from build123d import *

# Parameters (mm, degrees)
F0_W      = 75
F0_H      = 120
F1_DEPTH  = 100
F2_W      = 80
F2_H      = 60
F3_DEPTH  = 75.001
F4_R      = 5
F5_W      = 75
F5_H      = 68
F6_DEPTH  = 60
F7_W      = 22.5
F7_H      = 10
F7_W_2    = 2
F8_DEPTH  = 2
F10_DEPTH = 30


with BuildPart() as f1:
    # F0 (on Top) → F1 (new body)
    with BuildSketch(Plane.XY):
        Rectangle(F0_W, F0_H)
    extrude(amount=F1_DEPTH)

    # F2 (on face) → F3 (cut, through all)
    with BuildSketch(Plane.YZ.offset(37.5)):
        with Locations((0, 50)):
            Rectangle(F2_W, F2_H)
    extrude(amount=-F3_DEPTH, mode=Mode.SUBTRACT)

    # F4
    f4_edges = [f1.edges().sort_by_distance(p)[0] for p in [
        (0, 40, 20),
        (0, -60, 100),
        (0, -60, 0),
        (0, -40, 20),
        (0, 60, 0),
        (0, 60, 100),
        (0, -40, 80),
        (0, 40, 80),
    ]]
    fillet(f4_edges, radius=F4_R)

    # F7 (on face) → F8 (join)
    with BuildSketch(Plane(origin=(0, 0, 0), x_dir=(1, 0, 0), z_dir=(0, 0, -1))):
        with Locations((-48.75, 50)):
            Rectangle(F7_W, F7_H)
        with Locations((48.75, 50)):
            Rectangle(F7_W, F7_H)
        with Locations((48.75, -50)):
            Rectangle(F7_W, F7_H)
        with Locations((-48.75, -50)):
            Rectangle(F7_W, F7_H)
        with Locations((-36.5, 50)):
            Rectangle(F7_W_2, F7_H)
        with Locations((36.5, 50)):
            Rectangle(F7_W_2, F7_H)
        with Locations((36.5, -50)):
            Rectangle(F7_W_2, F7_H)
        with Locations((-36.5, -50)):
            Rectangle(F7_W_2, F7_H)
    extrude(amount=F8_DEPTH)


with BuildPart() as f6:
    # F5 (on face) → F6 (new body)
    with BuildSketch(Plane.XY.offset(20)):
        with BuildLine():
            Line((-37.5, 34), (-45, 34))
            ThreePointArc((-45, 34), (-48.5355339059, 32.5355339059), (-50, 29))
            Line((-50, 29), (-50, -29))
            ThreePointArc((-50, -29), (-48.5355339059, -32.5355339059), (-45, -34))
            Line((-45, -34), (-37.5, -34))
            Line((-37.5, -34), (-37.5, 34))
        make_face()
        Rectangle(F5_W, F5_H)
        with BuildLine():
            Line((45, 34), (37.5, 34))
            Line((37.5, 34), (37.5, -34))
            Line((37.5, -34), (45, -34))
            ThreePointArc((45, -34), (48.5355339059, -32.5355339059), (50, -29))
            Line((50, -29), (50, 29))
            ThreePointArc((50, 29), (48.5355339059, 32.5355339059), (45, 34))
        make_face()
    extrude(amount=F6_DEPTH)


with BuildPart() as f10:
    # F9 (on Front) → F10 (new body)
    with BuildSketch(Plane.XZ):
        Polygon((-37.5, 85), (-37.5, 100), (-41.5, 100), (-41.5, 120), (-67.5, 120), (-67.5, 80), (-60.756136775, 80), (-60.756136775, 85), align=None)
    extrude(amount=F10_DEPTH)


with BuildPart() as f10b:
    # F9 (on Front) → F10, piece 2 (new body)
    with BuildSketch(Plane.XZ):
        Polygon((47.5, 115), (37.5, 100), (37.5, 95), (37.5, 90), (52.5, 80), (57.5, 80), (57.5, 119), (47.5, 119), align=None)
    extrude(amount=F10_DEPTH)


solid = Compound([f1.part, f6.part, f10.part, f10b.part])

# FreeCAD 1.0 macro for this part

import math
import FreeCAD as App
import Part
import Sketcher
from FreeCAD import Vector
Q = App.Units.Quantity


def edges_at(feature, points):
    """Names of the edges that pass closest to the given points."""
    edges = feature.Shape.Edges
    near = lambda p: min(range(len(edges)), key=lambda i: edges[i].distToShape(Part.Vertex(*p))[0])
    return sorted({f"Edge{near(p) + 1}" for p in points})


def add_polygon(sketch, points):
    """Adds a closed chain of lines whose ends are joined by coincident constraints."""
    first, n = sketch.GeometryCount, len(points)
    for a, b in zip(points, points[1:] + points[:1]):
        sketch.addGeometry(Part.LineSegment(App.Vector(*a, 0), App.Vector(*b, 0)), False)
    for i in range(n):
        sketch.addConstraint(Sketcher.Constraint("Coincident", first + i, 2, first + (i + 1) % n, 1))

doc = App.newDocument("Part")
body = doc.addObject("PartDesign::Body", "Body")

# Sketch on XY plane
sketch1 = body.newObject("Sketcher::SketchObject", "Sketch")
sketch1.AttachmentSupport = (doc.getObject("XY_Plane"), [""])
sketch1.MapMode = "FlatFace"
add_polygon(sketch1, [(-37.5, 60), (-37.5, -60), (37.5, -60), (37.5, 60)])  # lines 0-3
sketch1.addConstraint(Sketcher.Constraint("Vertical", 0))
sketch1.addConstraint(Sketcher.Constraint("Horizontal", 1))
sketch1.addConstraint(Sketcher.Constraint("Vertical", 2))
sketch1.addConstraint(Sketcher.Constraint("Horizontal", 3))
sketch1.addConstraint(Sketcher.Constraint("Symmetric", 0, 2, 2, 2, -1, 1))
sketch1.addConstraint(Sketcher.Constraint("DistanceX", 1, 1, 1, 2, Q("75 mm")))
sketch1.addConstraint(Sketcher.Constraint("DistanceY", 0, 2, 0, 1, Q("120 mm")))
pad1 = body.newObject("PartDesign::Pad", "Pad")
pad1.Profile = sketch1
pad1.Length = 100

# Sketch on YZ plane
sketch2 = body.newObject("Sketcher::SketchObject", "Sketch001")
sketch2.AttachmentSupport = (doc.getObject("YZ_Plane"), [""])
sketch2.MapMode = "FlatFace"
sketch2.AttachmentOffset = App.Placement(Vector(0, 0, 37.5), App.Rotation())
add_polygon(sketch2, [(-40, 80), (-40, 20), (40, 20), (40, 80)])  # lines 0-3
sketch2.addConstraint(Sketcher.Constraint("Vertical", 0))
sketch2.addConstraint(Sketcher.Constraint("Horizontal", 1))
sketch2.addConstraint(Sketcher.Constraint("Vertical", 2))
sketch2.addConstraint(Sketcher.Constraint("Horizontal", 3))
sketch2.addConstraint(Sketcher.Constraint("DistanceX", 1, 1, 1, 2, Q("80 mm")))
sketch2.addConstraint(Sketcher.Constraint("DistanceY", 0, 2, 0, 1, Q("60 mm")))
sketch2.addConstraint(Sketcher.Constraint("DistanceX", 0, 2, -1, 1, Q("40 mm")))
sketch2.addConstraint(Sketcher.Constraint("DistanceY", -1, 1, 0, 2, Q("20 mm")))
pocket1 = body.newObject("PartDesign::Pocket", "Pocket")
pocket1.Profile = sketch2
pocket1.Type = "ThroughAll"
doc.recompute()

fillet = body.newObject("PartDesign::Fillet", "Fillet")
fillet.Base = (pocket1, edges_at(pocket1, [
    (0, 40, 20),
    (0, -60, 100),
    (0, -60, 0),
    (0, -40, 20),
    (0, 60, 0),
    (0, 60, 100),
    (0, -40, 80),
    (0, 40, 80),
]))
fillet.Radius = 5

# Sketch on XY plane
sketch3 = body.newObject("Sketcher::SketchObject", "Sketch002")
sketch3.AttachmentSupport = (doc.getObject("XY_Plane"), [""])
sketch3.MapMode = "FlatFace"
add_polygon(sketch3, [(-60, -55), (-60, -45), (-35.5, -45), (-35.5, -55)])  # lines 0-3
add_polygon(sketch3, [(60, -45), (60, -55), (35.5, -55), (35.5, -45)])  # lines 4-7
add_polygon(sketch3, [(60, 55), (60, 45), (35.5, 45), (35.5, 55)])  # lines 8-11
add_polygon(sketch3, [(-60, 45), (-60, 55), (-35.5, 55), (-35.5, 45)])  # lines 12-15
sketch3.addConstraint(Sketcher.Constraint("Vertical", 0))
sketch3.addConstraint(Sketcher.Constraint("Horizontal", 1))
sketch3.addConstraint(Sketcher.Constraint("Vertical", 2))
sketch3.addConstraint(Sketcher.Constraint("Horizontal", 3))
sketch3.addConstraint(Sketcher.Constraint("Vertical", 4))
sketch3.addConstraint(Sketcher.Constraint("Horizontal", 5))
sketch3.addConstraint(Sketcher.Constraint("Vertical", 6))
sketch3.addConstraint(Sketcher.Constraint("Horizontal", 7))
sketch3.addConstraint(Sketcher.Constraint("Vertical", 8))
sketch3.addConstraint(Sketcher.Constraint("Horizontal", 9))
sketch3.addConstraint(Sketcher.Constraint("Vertical", 10))
sketch3.addConstraint(Sketcher.Constraint("Horizontal", 11))
sketch3.addConstraint(Sketcher.Constraint("Vertical", 12))
sketch3.addConstraint(Sketcher.Constraint("Horizontal", 13))
sketch3.addConstraint(Sketcher.Constraint("Vertical", 14))
sketch3.addConstraint(Sketcher.Constraint("Horizontal", 15))
sketch3.addConstraint(Sketcher.Constraint("Symmetric", 0, 2, 8, 2, -1, 1))
sketch3.addConstraint(Sketcher.Constraint("Symmetric", 2, 2, 10, 2, -1, 1))
sketch3.addConstraint(Sketcher.Constraint("Symmetric", 4, 2, 12, 2, -1, 1))
sketch3.addConstraint(Sketcher.Constraint("Symmetric", 6, 2, 14, 2, -1, 1))
sketch3.addConstraint(Sketcher.Constraint("Symmetric", 3, 2, 4, 2, -2))
sketch3.addConstraint(Sketcher.Constraint("Symmetric", 1, 2, 6, 2, -2))
sketch3.addConstraint(Sketcher.Constraint("DistanceY", 0, 1, 0, 2, Q("10 mm")))
sketch3.addConstraint(Sketcher.Constraint("DistanceX", 1, 1, 1, 2, Q("24.5 mm")))
sketch3.addConstraint(Sketcher.Constraint("DistanceX", 0, 2, -1, 1, Q("60 mm")))
sketch3.addConstraint(Sketcher.Constraint("DistanceY", 0, 2, -1, 1, Q("45 mm")))
pad2 = body.newObject("PartDesign::Pad", "Pad001")
pad2.Profile = sketch3
pad2.Length = 2
pad2.Reversed = True
body2 = doc.addObject("PartDesign::Body", "Body001")

# Sketch on XY plane
sketch4 = body2.newObject("Sketcher::SketchObject", "Sketch003")
sketch4.AttachmentSupport = (doc.getObject("XY_Plane001"), [""])
sketch4.MapMode = "FlatFace"
sketch4.AttachmentOffset = App.Placement(Vector(0, 0, 20), App.Rotation())
sketch4.addGeometry(Part.ArcOfCircle(Part.Circle(Vector(-45, 29, 0), Vector(0, 0, 1), 5), math.radians(90), math.radians(180)), False)
sketch4.addGeometry(Part.LineSegment(Vector(-50, 29, 0), Vector(-50, -29, 0)), False)
sketch4.addGeometry(Part.ArcOfCircle(Part.Circle(Vector(-45, -29, 0), Vector(0, 0, 1), 5), math.radians(180), math.radians(270)), False)
sketch4.addGeometry(Part.LineSegment(Vector(-45, -34, 0), Vector(45, -34, 0)), False)
sketch4.addGeometry(Part.ArcOfCircle(Part.Circle(Vector(45, -29, 0), Vector(0, 0, 1), 5), math.radians(-90), math.radians(0)), False)
sketch4.addGeometry(Part.LineSegment(Vector(50, -29, 0), Vector(50, 29, 0)), False)
sketch4.addGeometry(Part.ArcOfCircle(Part.Circle(Vector(45, 29, 0), Vector(0, 0, 1), 5), math.radians(0), math.radians(90)), False)
sketch4.addGeometry(Part.LineSegment(Vector(45, 34, 0), Vector(-45, 34, 0)), False)
sketch4.addConstraint(Sketcher.Constraint("Tangent", 0, 2, 1, 1))
sketch4.addConstraint(Sketcher.Constraint("Tangent", 1, 2, 2, 1))
sketch4.addConstraint(Sketcher.Constraint("Tangent", 2, 2, 3, 1))
sketch4.addConstraint(Sketcher.Constraint("Tangent", 3, 2, 4, 1))
sketch4.addConstraint(Sketcher.Constraint("Tangent", 4, 2, 5, 1))
sketch4.addConstraint(Sketcher.Constraint("Tangent", 5, 2, 6, 1))
sketch4.addConstraint(Sketcher.Constraint("Tangent", 6, 2, 7, 1))
sketch4.addConstraint(Sketcher.Constraint("Tangent", 7, 2, 0, 1))
sketch4.addConstraint(Sketcher.Constraint("Vertical", 1))
sketch4.addConstraint(Sketcher.Constraint("Horizontal", 3))
sketch4.addConstraint(Sketcher.Constraint("Vertical", 5))
sketch4.addConstraint(Sketcher.Constraint("Horizontal", 7))
sketch4.addConstraint(Sketcher.Constraint("Equal", 0, 2))
sketch4.addConstraint(Sketcher.Constraint("Equal", 2, 4))
sketch4.addConstraint(Sketcher.Constraint("Equal", 4, 6))
sketch4.addConstraint(Sketcher.Constraint("Symmetric", 0, 3, 4, 3, -1, 1))
sketch4.addConstraint(Sketcher.Constraint("Radius", 0, Q("5 mm")))
sketch4.addConstraint(Sketcher.Constraint("DistanceX", 3, 1, 3, 2, Q("90 mm")))
sketch4.addConstraint(Sketcher.Constraint("DistanceY", 1, 2, 1, 1, Q("58 mm")))
pad3 = body2.newObject("PartDesign::Pad", "Pad002")
pad3.Profile = sketch4
pad3.Length = 60
body3 = doc.addObject("PartDesign::Body", "Body002")

# Sketch on XZ plane
sketch5 = body3.newObject("Sketcher::SketchObject", "Sketch004")
sketch5.AttachmentSupport = (doc.getObject("XZ_Plane002"), [""])
sketch5.MapMode = "FlatFace"
add_polygon(sketch5, [(-37.5, 85), (-37.5, 100), (-41.5, 100), (-41.5, 120), (-67.5, 120), (-67.5, 80), (-60.756137, 80), (-60.756137, 85)])  # lines 0-7
sketch5.addConstraint(Sketcher.Constraint("Vertical", 0))
sketch5.addConstraint(Sketcher.Constraint("Horizontal", 1))
sketch5.addConstraint(Sketcher.Constraint("Vertical", 2))
sketch5.addConstraint(Sketcher.Constraint("Horizontal", 3))
sketch5.addConstraint(Sketcher.Constraint("Vertical", 4))
sketch5.addConstraint(Sketcher.Constraint("Horizontal", 5))
sketch5.addConstraint(Sketcher.Constraint("Vertical", 6))
sketch5.addConstraint(Sketcher.Constraint("Horizontal", 7))
sketch5.addConstraint(Sketcher.Constraint("DistanceX", 1, 2, 1, 1, Q("4 mm")))
sketch5.addConstraint(Sketcher.Constraint("DistanceX", 3, 2, 3, 1, Q("26 mm")))
sketch5.addConstraint(Sketcher.Constraint("DistanceY", 0, 1, 0, 2, Q("15 mm")))
sketch5.addConstraint(Sketcher.Constraint("DistanceY", 2, 1, 2, 2, Q("20 mm")))
sketch5.addConstraint(Sketcher.Constraint("DistanceY", 4, 2, 4, 1, Q("40 mm")))
sketch5.addConstraint(Sketcher.Constraint("DistanceY", -1, 1, 0, 2, Q("100 mm")))
sketch5.addConstraint(Sketcher.Constraint("DistanceX", 0, 2, -1, 1, Q("37.5 mm")))
sketch5.addConstraint(Sketcher.Constraint("DistanceX", 5, 1, 5, 2, Q("6.743863 mm")))
pad4 = body3.newObject("PartDesign::Pad", "Pad003")
pad4.Profile = sketch5
pad4.Length = 30
body4 = doc.addObject("PartDesign::Body", "Body003")

# Sketch on XZ plane
sketch6 = body4.newObject("Sketcher::SketchObject", "Sketch005")
sketch6.AttachmentSupport = (doc.getObject("XZ_Plane003"), [""])
sketch6.MapMode = "FlatFace"
add_polygon(sketch6, [(47.5, 115), (37.5, 100), (37.5, 90), (52.5, 80), (57.5, 80), (57.5, 119), (47.5, 119)])  # lines 0-6
sketch6.addConstraint(Sketcher.Constraint("Vertical", 1))
sketch6.addConstraint(Sketcher.Constraint("Horizontal", 3))
sketch6.addConstraint(Sketcher.Constraint("Vertical", 4))
sketch6.addConstraint(Sketcher.Constraint("Horizontal", 5))
sketch6.addConstraint(Sketcher.Constraint("Vertical", 6))
sketch6.addConstraint(Sketcher.Constraint("Perpendicular", 0, 2))
sketch6.addConstraint(Sketcher.Constraint("Equal", 5, 1))
sketch6.addConstraint(Sketcher.Constraint("Equal", 0, 2))
sketch6.addConstraint(Sketcher.Constraint("DistanceX", 3, 1, 3, 2, Q("5 mm")))
sketch6.addConstraint(Sketcher.Constraint("DistanceX", 5, 2, 5, 1, Q("10 mm")))
sketch6.addConstraint(Sketcher.Constraint("DistanceY", 4, 1, 4, 2, Q("39 mm")))
sketch6.addConstraint(Sketcher.Constraint("DistanceY", 6, 2, 6, 1, Q("4 mm")))
sketch6.addConstraint(Sketcher.Constraint("DistanceY", -1, 1, 0, 2, Q("100 mm")))
sketch6.addConstraint(Sketcher.Constraint("DistanceX", -1, 1, 0, 2, Q("37.5 mm")))
pad5 = body4.newObject("PartDesign::Pad", "Pad004")
pad5.Profile = sketch6
pad5.Length = 30

doc.recompute()
